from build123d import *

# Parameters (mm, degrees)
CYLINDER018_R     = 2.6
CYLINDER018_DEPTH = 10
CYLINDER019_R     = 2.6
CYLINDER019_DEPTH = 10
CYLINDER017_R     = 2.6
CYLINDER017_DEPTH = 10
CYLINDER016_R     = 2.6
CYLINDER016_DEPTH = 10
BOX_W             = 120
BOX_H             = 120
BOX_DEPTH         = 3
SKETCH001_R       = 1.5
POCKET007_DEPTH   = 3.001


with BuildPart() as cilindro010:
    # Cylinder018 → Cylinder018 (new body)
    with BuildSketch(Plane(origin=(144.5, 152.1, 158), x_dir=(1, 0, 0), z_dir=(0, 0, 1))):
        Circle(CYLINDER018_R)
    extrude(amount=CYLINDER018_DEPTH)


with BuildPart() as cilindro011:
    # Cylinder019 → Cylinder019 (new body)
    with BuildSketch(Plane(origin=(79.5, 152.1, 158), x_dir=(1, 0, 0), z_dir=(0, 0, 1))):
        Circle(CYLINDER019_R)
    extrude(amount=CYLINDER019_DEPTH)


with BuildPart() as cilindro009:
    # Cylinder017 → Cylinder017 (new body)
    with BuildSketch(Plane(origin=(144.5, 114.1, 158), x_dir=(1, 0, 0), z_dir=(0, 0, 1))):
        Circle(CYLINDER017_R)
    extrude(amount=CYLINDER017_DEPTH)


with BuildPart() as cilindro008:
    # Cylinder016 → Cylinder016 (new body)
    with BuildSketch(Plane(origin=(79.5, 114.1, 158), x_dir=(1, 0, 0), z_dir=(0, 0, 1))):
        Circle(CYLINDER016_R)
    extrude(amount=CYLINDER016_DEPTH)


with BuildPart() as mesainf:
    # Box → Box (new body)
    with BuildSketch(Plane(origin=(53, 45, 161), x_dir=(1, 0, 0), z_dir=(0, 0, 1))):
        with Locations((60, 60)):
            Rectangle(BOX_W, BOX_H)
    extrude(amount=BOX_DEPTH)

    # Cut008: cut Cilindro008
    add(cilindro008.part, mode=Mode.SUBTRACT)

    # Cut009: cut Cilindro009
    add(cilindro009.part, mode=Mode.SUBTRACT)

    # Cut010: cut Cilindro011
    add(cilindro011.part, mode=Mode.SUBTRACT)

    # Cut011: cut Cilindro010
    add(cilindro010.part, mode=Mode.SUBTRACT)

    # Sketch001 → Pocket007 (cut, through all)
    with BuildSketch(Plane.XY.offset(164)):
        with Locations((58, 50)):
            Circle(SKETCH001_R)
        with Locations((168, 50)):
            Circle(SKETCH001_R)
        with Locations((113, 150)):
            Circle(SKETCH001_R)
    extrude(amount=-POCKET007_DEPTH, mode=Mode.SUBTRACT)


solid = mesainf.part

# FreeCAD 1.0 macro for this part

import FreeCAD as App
import Part
import Sketcher

V = App.Vector

doc = App.newDocument("Part")
body = doc.addObject("PartDesign::Body", "Body")

sketch1 = doc.addObject("Sketcher::SketchObject", "Sketch")
body.addObject(sketch1)
sketch1.AttachmentSupport = (doc.XY_Plane, [""])
sketch1.MapMode = "FlatFace"
sketch1.AttachmentOffset = App.Placement(V(0, 0, 158), App.Rotation())
sketch1.addGeometry(Part.Circle(V(144.5, 152.1, 0), V(0, 0, 1), 2.6), False)
sketch1.addConstraint([
    Sketcher.Constraint("Diameter", 0, 5.2),
    Sketcher.Constraint("DistanceX", -1, 1, 0, 3, 144.5),
    Sketcher.Constraint("DistanceY", -1, 1, 0, 3, 152.1),
])
pad1 = doc.addObject("PartDesign::Pad", "Pad")
body.addObject(pad1)
pad1.Profile = sketch1
pad1.Length = 10
body2 = doc.addObject("PartDesign::Body", "Body001")

sketch2 = doc.addObject("Sketcher::SketchObject", "Sketch001")
body2.addObject(sketch2)
sketch2.AttachmentSupport = (doc.getObject("XY_Plane001"), [""])
sketch2.MapMode = "FlatFace"
sketch2.AttachmentOffset = App.Placement(V(0, 0, 158), App.Rotation())
sketch2.addGeometry(Part.Circle(V(79.5, 152.1, 0), V(0, 0, 1), 2.6), False)
sketch2.addConstraint([
    Sketcher.Constraint("Diameter", 0, 5.2),
    Sketcher.Constraint("DistanceX", -1, 1, 0, 3, 79.5),
    Sketcher.Constraint("DistanceY", -1, 1, 0, 3, 152.1),
])
pad2 = doc.addObject("PartDesign::Pad", "Pad001")
body2.addObject(pad2)
pad2.Profile = sketch2
pad2.Length = 10
body3 = doc.addObject("PartDesign::Body", "Body002")

sketch3 = doc.addObject("Sketcher::SketchObject", "Sketch002")
body3.addObject(sketch3)
sketch3.AttachmentSupport = (doc.getObject("XY_Plane002"), [""])
sketch3.MapMode = "FlatFace"
sketch3.AttachmentOffset = App.Placement(V(0, 0, 158), App.Rotation())
sketch3.addGeometry(Part.Circle(V(144.5, 114.1, 0), V(0, 0, 1), 2.6), False)
sketch3.addConstraint([
    Sketcher.Constraint("Diameter", 0, 5.2),
    Sketcher.Constraint("DistanceX", -1, 1, 0, 3, 144.5),
    Sketcher.Constraint("DistanceY", -1, 1, 0, 3, 114.1),
])
pad3 = doc.addObject("PartDesign::Pad", "Pad002")
body3.addObject(pad3)
pad3.Profile = sketch3
pad3.Length = 10
body4 = doc.addObject("PartDesign::Body", "Body003")

sketch4 = doc.addObject("Sketcher::SketchObject", "Sketch003")
body4.addObject(sketch4)
sketch4.AttachmentSupport = (doc.getObject("XY_Plane003"), [""])
sketch4.MapMode = "FlatFace"
sketch4.AttachmentOffset = App.Placement(V(0, 0, 158), App.Rotation())
sketch4.addGeometry(Part.Circle(V(79.5, 114.1, 0), V(0, 0, 1), 2.6), False)
sketch4.addConstraint([
    Sketcher.Constraint("Diameter", 0, 5.2),
    Sketcher.Constraint("DistanceX", -1, 1, 0, 3, 79.5),
    Sketcher.Constraint("DistanceY", -1, 1, 0, 3, 114.1),
])
pad4 = doc.addObject("PartDesign::Pad", "Pad003")
body4.addObject(pad4)
pad4.Profile = sketch4
pad4.Length = 10
body5 = doc.addObject("PartDesign::Body", "Body004")

sketch5 = doc.addObject("Sketcher::SketchObject", "Sketch004")
body5.addObject(sketch5)
sketch5.AttachmentSupport = (doc.getObject("XY_Plane004"), [""])
sketch5.MapMode = "FlatFace"
sketch5.AttachmentOffset = App.Placement(V(0, 0, 161), App.Rotation())
sketch5.addGeometry([
    Part.LineSegment(V(53, 165, 0), V(53, 45, 0)),
    Part.LineSegment(V(53, 45, 0), V(173, 45, 0)),
    Part.LineSegment(V(173, 45, 0), V(173, 165, 0)),
    Part.LineSegment(V(173, 165, 0), V(53, 165, 0)),
], False)
sketch5.addConstraint([
    Sketcher.Constraint("Coincident", 0, 2, 1, 1),
    Sketcher.Constraint("Coincident", 1, 2, 2, 1),
    Sketcher.Constraint("Coincident", 2, 2, 3, 1),
    Sketcher.Constraint("Coincident", 3, 2, 0, 1),
    Sketcher.Constraint("Vertical", 0),
    Sketcher.Constraint("Horizontal", 1),
    Sketcher.Constraint("Vertical", 2),
    Sketcher.Constraint("Horizontal", 3),
    Sketcher.Constraint("Equal", 3, 0),
    Sketcher.Constraint("DistanceX", 1, 1, 1, 2, 120.0),
    Sketcher.Constraint("DistanceX", -1, 1, 0, 2, 53.0),
    Sketcher.Constraint("DistanceY", -1, 1, 0, 2, 45.0),
])
pad5 = doc.addObject("PartDesign::Pad", "Pad004")
body5.addObject(pad5)
pad5.Profile = sketch5
pad5.Length = 3
doc.recompute()

boolean = doc.addObject("PartDesign::Boolean", "Boolean")
body5.addObject(boolean)
boolean.Type = "Cut"
boolean.addObjects([body4])
doc.recompute()

boolean2 = doc.addObject("PartDesign::Boolean", "Boolean001")
body5.addObject(boolean2)
boolean2.Type = "Cut"
boolean2.addObjects([body3])
doc.recompute()

boolean3 = doc.addObject("PartDesign::Boolean", "Boolean002")
body5.addObject(boolean3)
boolean3.Type = "Cut"
boolean3.addObjects([body2])
doc.recompute()

boolean4 = doc.addObject("PartDesign::Boolean", "Boolean003")
body5.addObject(boolean4)
boolean4.Type = "Cut"
boolean4.addObjects([body])

sketch6 = doc.addObject("Sketcher::SketchObject", "Sketch005")
body5.addObject(sketch6)
sketch6.AttachmentSupport = (doc.getObject("XY_Plane004"), [""])
sketch6.MapMode = "FlatFace"
sketch6.AttachmentOffset = App.Placement(V(0, 0, 164), App.Rotation())
sketch6.addGeometry([
    Part.Circle(V(58, 50, 0), V(0, 0, 1), 1.5),
    Part.Circle(V(168, 50, 0), V(0, 0, 1), 1.5),
    Part.Circle(V(113, 150, 0), V(0, 0, 1), 1.5),
], False)
sketch6.addConstraint([
    Sketcher.Constraint("Equal", 0, 1),
    Sketcher.Constraint("Equal", 1, 2),
    Sketcher.Constraint("Horizontal", 0, 3, 1, 3),
    Sketcher.Constraint("Diameter", 0, 3.0),
    Sketcher.Constraint("DistanceX", -1, 1, 0, 3, 58.0),
    Sketcher.Constraint("DistanceY", -1, 1, 0, 3, 50.0),
    Sketcher.Constraint("DistanceX", -1, 1, 1, 3, 168.0),
    Sketcher.Constraint("DistanceX", -1, 1, 2, 3, 113.0),
    Sketcher.Constraint("DistanceY", -1, 1, 2, 3, 150.0),
])
pocket1 = doc.addObject("PartDesign::Pocket", "Pocket")
body5.addObject(pocket1)
pocket1.Profile = sketch6
pocket1.Type = "ThroughAll"

doc.recompute()
